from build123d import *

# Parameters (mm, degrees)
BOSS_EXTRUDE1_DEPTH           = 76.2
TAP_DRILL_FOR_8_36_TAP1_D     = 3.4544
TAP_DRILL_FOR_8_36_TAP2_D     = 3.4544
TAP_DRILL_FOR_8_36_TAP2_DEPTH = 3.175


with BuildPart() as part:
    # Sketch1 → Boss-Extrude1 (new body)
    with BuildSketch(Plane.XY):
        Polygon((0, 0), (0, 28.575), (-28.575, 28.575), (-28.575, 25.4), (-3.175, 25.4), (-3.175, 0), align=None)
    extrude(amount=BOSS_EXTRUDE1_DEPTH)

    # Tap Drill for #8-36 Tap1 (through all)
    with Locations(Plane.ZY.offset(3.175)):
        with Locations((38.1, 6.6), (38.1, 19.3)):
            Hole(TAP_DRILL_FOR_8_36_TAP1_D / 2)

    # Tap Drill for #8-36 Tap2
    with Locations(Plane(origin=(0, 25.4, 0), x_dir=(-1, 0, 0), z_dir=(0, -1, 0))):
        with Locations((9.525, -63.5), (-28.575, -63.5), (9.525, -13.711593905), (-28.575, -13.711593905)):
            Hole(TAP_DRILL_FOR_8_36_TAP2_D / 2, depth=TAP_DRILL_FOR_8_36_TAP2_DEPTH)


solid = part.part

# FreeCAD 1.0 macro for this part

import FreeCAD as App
import Part
import Sketcher
from FreeCAD import Vector
Q = App.Units.Quantity

doc = App.newDocument("Part")
body = doc.addObject("PartDesign::Body", "Body")

# Sketch on XY plane
sketch1 = body.newObject("Sketcher::SketchObject", "Sketch")
sketch1.AttachmentSupport = (doc.getObject("XY_Plane"), [""])
sketch1.MapMode = "FlatFace"
sketch1.addGeometry(Part.LineSegment(Vector(0, 0, 0), Vector(0, 28.6, 0)), False)
sketch1.addGeometry(Part.LineSegment(Vector(0, 28.6, 0), Vector(-28.6, 28.6, 0)), False)
sketch1.addGeometry(Part.LineSegment(Vector(-28.6, 28.6, 0), Vector(-28.6, 25.4, 0)), False)
sketch1.addGeometry(Part.LineSegment(Vector(-28.6, 25.4, 0), Vector(-3.2, 25.4, 0)), False)
sketch1.addGeometry(Part.LineSegment(Vector(-3.2, 25.4, 0), Vector(-3.2, 0, 0)), False)
sketch1.addGeometry(Part.LineSegment(Vector(-3.2, 0, 0), Vector(0, 0, 0)), False)
sketch1.addConstraint(Sketcher.Constraint("Coincident", 0, 2, 1, 1))
sketch1.addConstraint(Sketcher.Constraint("Coincident", 1, 2, 2, 1))
sketch1.addConstraint(Sketcher.Constraint("Coincident", 2, 2, 3, 1))
sketch1.addConstraint(Sketcher.Constraint("Coincident", 3, 2, 4, 1))
sketch1.addConstraint(Sketcher.Constraint("Coincident", 4, 2, 5, 1))
sketch1.addConstraint(Sketcher.Constraint("Coincident", 5, 2, 0, 1))
sketch1.addConstraint(Sketcher.Constraint("Vertical", 0))
sketch1.addConstraint(Sketcher.Constraint("Horizontal", 1))
sketch1.addConstraint(Sketcher.Constraint("Vertical", 2))
sketch1.addConstraint(Sketcher.Constraint("Horizontal", 3))
sketch1.addConstraint(Sketcher.Constraint("Vertical", 4))
sketch1.addConstraint(Sketcher.Constraint("Horizontal", 5))
sketch1.addConstraint(Sketcher.Constraint("Coincident", 5, 2, -1, 1))
sketch1.addConstraint(Sketcher.Constraint("Equal", 1, 0))
sketch1.addConstraint(Sketcher.Constraint("Equal", 5, 2))
sketch1.addConstraint(Sketcher.Constraint("DistanceX", 3, 1, 3, 2, Q("1 in")))
sketch1.addConstraint(Sketcher.Constraint("DistanceX", 1, 2, 1, 1, Q("1.125 in")))
pad1 = body.newObject("PartDesign::Pad", "Pad")
pad1.Profile = sketch1
pad1.Length = Q("3 in")

# Sketch on YZ plane
sketch2 = body.newObject("Sketcher::SketchObject", "Sketch001")
sketch2.AttachmentSupport = (doc.getObject("YZ_Plane"), [""])
sketch2.MapMode = "FlatFace"
sketch2.AttachmentOffset = App.Placement(Vector(0, 0, -0.125 * 25.4), App.Rotation())
sketch2.addGeometry(Part.Circle(Vector(6.6, 38.1, 0), Vector(0, 0, 1), 1.7), False)
sketch2.addGeometry(Part.Circle(Vector(19.3, 38.1, 0), Vector(0, 0, 1), 1.7), False)
sketch2.addConstraint(Sketcher.Constraint("Equal", 0, 1))
sketch2.addConstraint(Sketcher.Constraint("Horizontal", 0, 3, 1, 3))
sketch2.addConstraint(Sketcher.Constraint("Diameter", 0, Q("0.136 in")))
sketch2.addConstraint(Sketcher.Constraint("DistanceY", -1, 1, 0, 3, Q("1.5 in")))
sketch2.addConstraint(Sketcher.Constraint("DistanceX", 0, 3, 1, 3, Q("0.5 in")))
sketch2.addConstraint(Sketcher.Constraint("DistanceX", -1, 1, 0, 3, Q("6.6 mm")))
doc.recompute()
hole = body.newObject("PartDesign::Hole", "Hole")
hole.Profile = sketch2
hole.ThreadType = "None"
hole.Diameter = Q("0.136 in")
hole.DepthType = "ThroughAll"
hole.Reversed = True

# Sketch on XZ plane
sketch3 = body.newObject("Sketcher::SketchObject", "Sketch002")
sketch3.AttachmentSupport = (doc.getObject("XZ_Plane"), [""])
sketch3.MapMode = "FlatFace"
sketch3.AttachmentOffset = App.Placement(Vector(0, 0, -1 * 25.4), App.Rotation())
sketch3.addGeometry(Part.Circle(Vector(-9.5, 63.5, 0), Vector(0, 0, 1), 1.7), False)
sketch3.addGeometry(Part.Circle(Vector(28.6, 63.5, 0), Vector(0, 0, 1), 1.7), False)
sketch3.addGeometry(Part.Circle(Vector(-9.5, 13.7, 0), Vector(0, 0, 1), 1.7), False)
sketch3.addGeometry(Part.Circle(Vector(28.6, 13.7, 0), Vector(0, 0, 1), 1.7), False)
sketch3.addConstraint(Sketcher.Constraint("Equal", 0, 1))
sketch3.addConstraint(Sketcher.Constraint("Equal", 1, 2))
sketch3.addConstraint(Sketcher.Constraint("Equal", 2, 3))
sketch3.addConstraint(Sketcher.Constraint("Horizontal", 0, 3, 1, 3))
sketch3.addConstraint(Sketcher.Constraint("Horizontal", 2, 3, 3, 3))
sketch3.addConstraint(Sketcher.Constraint("Vertical", 0, 3, 2, 3))
sketch3.addConstraint(Sketcher.Constraint("Vertical", 1, 3, 3, 3))
sketch3.addConstraint(Sketcher.Constraint("Diameter", 0, Q("0.136 in")))
sketch3.addConstraint(Sketcher.Constraint("DistanceY", -1, 1, 0, 3, Q("2.5 in")))
sketch3.addConstraint(Sketcher.Constraint("DistanceX", 0, 3, 1, 3, Q("1.5 in")))
sketch3.addConstraint(Sketcher.Constraint("DistanceX", 0, 3, -1, 1, Q("0.375 in")))
sketch3.addConstraint(Sketcher.Constraint("DistanceY", -1, 1, 2, 3, Q("13.711594 mm")))
doc.recompute()
hole2 = body.newObject("PartDesign::Hole", "Hole001")
hole2.Profile = sketch3
hole2.ThreadType = "None"
hole2.Diameter = Q("0.136 in")
hole2.DepthType = "Dimension"
hole2.Depth = Q("0.125 in")
hole2.DrillPoint = "Flat"

doc.recompute()
